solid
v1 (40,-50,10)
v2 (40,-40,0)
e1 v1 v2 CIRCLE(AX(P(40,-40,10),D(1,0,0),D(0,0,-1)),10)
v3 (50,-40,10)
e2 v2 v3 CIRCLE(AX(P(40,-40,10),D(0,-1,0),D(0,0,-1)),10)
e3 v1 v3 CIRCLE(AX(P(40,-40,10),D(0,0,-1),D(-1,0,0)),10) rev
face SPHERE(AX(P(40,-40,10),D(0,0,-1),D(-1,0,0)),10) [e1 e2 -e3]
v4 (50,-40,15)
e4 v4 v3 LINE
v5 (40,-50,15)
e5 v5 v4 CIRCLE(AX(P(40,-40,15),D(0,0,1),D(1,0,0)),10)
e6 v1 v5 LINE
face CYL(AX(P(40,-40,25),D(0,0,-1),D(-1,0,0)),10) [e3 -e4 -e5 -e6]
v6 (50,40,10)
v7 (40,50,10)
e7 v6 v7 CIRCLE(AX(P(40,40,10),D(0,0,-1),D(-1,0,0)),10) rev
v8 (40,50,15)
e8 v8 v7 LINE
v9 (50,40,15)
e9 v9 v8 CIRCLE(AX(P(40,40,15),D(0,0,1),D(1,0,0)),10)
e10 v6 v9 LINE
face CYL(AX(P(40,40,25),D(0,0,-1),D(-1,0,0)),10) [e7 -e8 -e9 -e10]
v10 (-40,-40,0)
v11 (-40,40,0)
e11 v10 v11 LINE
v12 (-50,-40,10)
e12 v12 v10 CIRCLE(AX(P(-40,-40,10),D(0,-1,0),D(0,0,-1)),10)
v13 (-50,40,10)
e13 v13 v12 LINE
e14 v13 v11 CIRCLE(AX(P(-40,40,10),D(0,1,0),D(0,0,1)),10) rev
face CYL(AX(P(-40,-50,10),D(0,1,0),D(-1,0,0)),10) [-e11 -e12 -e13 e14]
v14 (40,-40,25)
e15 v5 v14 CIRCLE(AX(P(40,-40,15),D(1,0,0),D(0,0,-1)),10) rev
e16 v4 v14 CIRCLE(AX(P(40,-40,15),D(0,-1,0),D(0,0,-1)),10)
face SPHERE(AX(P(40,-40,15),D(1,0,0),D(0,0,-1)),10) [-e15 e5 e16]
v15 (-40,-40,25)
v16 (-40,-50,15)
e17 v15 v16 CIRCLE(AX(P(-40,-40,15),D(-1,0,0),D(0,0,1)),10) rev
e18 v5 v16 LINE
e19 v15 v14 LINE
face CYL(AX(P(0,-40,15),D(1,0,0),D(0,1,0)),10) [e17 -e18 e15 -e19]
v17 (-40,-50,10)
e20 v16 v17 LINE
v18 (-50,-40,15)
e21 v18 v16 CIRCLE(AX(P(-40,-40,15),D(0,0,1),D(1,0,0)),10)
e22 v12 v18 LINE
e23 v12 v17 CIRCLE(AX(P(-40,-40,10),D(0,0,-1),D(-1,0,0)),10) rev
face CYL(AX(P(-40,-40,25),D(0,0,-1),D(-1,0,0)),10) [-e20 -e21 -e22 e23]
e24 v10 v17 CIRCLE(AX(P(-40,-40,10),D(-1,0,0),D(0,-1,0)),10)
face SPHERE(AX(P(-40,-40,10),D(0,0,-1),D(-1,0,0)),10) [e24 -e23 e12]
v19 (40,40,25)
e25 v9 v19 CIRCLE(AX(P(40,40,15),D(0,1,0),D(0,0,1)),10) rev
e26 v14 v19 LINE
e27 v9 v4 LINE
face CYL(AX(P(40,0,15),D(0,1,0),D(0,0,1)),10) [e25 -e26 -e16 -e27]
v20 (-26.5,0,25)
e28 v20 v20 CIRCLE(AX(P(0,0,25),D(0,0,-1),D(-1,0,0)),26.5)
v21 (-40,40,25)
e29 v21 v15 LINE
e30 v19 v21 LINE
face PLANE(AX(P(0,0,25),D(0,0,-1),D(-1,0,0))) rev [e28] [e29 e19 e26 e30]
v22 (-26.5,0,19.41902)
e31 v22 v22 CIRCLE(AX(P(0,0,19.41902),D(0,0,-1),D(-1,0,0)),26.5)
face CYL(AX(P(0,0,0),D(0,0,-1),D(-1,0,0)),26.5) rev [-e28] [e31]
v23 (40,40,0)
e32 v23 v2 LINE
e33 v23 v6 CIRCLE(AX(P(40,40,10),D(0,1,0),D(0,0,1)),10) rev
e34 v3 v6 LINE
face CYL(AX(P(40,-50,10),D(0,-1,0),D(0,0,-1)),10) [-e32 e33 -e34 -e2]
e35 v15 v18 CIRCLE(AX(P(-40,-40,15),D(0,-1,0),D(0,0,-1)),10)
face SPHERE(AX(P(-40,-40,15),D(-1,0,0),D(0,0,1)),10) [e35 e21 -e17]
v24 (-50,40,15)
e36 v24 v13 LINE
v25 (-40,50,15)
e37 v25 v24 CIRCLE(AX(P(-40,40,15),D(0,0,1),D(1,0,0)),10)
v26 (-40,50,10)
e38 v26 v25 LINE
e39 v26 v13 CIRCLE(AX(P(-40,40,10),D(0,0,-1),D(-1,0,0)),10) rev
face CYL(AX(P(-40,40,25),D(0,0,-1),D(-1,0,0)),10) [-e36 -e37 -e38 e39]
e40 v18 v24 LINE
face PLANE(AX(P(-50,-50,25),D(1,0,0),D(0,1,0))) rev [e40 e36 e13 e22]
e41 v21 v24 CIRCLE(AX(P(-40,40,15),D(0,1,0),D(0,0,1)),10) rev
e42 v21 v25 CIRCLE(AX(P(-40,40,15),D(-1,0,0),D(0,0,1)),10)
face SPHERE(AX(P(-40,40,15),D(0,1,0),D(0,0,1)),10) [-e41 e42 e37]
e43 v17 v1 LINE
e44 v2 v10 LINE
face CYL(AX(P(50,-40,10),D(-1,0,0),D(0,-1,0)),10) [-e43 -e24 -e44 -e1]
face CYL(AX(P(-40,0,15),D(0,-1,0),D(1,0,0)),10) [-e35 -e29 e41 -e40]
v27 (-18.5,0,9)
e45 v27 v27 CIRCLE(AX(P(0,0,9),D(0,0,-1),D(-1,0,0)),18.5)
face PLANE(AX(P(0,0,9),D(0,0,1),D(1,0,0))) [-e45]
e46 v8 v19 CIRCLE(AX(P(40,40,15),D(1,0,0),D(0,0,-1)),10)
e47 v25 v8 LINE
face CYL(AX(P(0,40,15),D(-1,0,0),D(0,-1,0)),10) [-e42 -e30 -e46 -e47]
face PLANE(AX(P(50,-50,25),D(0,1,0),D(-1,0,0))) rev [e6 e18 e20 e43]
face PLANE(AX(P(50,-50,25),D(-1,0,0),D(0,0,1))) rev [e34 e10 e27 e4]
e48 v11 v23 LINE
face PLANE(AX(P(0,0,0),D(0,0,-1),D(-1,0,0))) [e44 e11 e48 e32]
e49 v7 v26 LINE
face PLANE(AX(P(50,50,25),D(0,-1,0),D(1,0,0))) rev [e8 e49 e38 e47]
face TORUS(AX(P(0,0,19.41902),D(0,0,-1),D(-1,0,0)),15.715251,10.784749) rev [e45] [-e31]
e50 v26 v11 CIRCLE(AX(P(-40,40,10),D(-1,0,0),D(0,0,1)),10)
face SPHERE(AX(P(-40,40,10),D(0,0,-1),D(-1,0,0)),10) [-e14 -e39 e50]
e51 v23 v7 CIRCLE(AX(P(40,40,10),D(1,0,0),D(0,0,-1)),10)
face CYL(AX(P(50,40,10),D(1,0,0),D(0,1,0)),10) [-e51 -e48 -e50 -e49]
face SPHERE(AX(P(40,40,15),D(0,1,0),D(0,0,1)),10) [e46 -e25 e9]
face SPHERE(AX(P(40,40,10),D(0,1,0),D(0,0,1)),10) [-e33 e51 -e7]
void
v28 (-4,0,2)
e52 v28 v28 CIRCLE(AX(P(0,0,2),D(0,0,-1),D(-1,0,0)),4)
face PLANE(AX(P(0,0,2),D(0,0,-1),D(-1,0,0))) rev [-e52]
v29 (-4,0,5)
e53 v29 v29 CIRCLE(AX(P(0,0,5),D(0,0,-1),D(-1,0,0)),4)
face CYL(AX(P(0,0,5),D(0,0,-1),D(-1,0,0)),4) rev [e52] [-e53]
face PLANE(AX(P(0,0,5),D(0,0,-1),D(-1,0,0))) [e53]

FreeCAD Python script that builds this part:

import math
import FreeCAD as App
import Part
import Sketcher

V = App.Vector


def edges_at(feature, points):
    """Names of the edges that pass closest to the given points."""
    edges = feature.Shape.Edges
    near = lambda p: min(range(len(edges)), key=lambda i: edges[i].distToShape(Part.Vertex(*p))[0])
    return sorted({f"Edge{near(p) + 1}" for p in points})

doc = App.newDocument("Part")
params = doc.addObject("Spreadsheet::Sheet", "Params")
for row, (alias, value) in enumerate([
    ("sketch1_width", "100 mm"),
    ("pad1_length", "25 mm"),
    ("sketch2_height", "16 mm"),
    ("sketch2_width", "26.5 mm"),
    ("sketch2_width2", "18.5 mm"),
    ("groove_angle", "360 deg"),
    ("fillet_radius", "10 mm"),
    ("sketch3_diameter", "8 mm"),
    ("pocket1_length", "3 mm"),
], start=1):
    params.set(f"A{row}", alias)
    params.set(f"B{row}", "=" + value)
    params.setAlias(f"B{row}", alias)

body = doc.addObject("PartDesign::Body", "Body")

sketch1 = body.newObject("Sketcher::SketchObject", "Sketch")
sketch1.AttachmentSupport = (doc.getObject("XY_Plane"), [""])
sketch1.MapMode = "FlatFace"
sketch1.addGeometry(Part.LineSegment(V(-50, -50, 0), V(50, -50, 0)), False)
sketch1.addGeometry(Part.LineSegment(V(50, -50, 0), V(50, 50, 0)), False)
sketch1.addGeometry(Part.LineSegment(V(50, 50, 0), V(-50, 50, 0)), False)
sketch1.addGeometry(Part.LineSegment(V(-50, 50, 0), V(-50, -50, 0)), False)
sketch1.addConstraint(Sketcher.Constraint("Coincident", 0, 2, 1, 1))
sketch1.addConstraint(Sketcher.Constraint("Coincident", 1, 2, 2, 1))
sketch1.addConstraint(Sketcher.Constraint("Coincident", 2, 2, 3, 1))
sketch1.addConstraint(Sketcher.Constraint("Coincident", 3, 2, 0, 1))
sketch1.addConstraint(Sketcher.Constraint("Horizontal", 0))
sketch1.addConstraint(Sketcher.Constraint("Vertical", 1))
sketch1.addConstraint(Sketcher.Constraint("Horizontal", 2))
sketch1.addConstraint(Sketcher.Constraint("Vertical", 3))
sketch1.addConstraint(Sketcher.Constraint("Symmetric", 0, 2, 2, 2, -1, 1))
sketch1.addConstraint(Sketcher.Constraint("Equal", 2, 1))
sketch1.addConstraint(Sketcher.Constraint("DistanceX", 0, 1, 0, 2, 100.0))
sketch1.setExpression("Constraints[10]", "Params.sketch1_width")
pad1 = body.newObject("PartDesign::Pad", "Pad")
pad1.Profile = sketch1
pad1.setExpression("Length", "Params.pad1_length")

sketch2 = body.newObject("Sketcher::SketchObject", "Sketch001")
sketch2.AttachmentSupport = (doc.getObject("YZ_Plane"), [""])
sketch2.MapMode = "FlatFace"
sketch2.addGeometry(Part.LineSegment(V(0, 9, 0), V(0, 25, 0)), False)
sketch2.addGeometry(Part.LineSegment(V(0, 25, 0), V(26.5, 25, 0)), False)
sketch2.addGeometry(Part.LineSegment(V(26.5, 25, 0), V(26.5, 19.41902, 0)), False)
sketch2.addGeometry(Part.ArcOfCircle(Part.Circle(V(15.715251, 19.41902, 0), V(0, 0, 1), 10.784749), math.radians(-75.036021), math.radians(0)), False)
sketch2.addGeometry(Part.LineSegment(V(18.5, 9, 0), V(0, 9, 0)), False)
sketch2.addConstraint(Sketcher.Constraint("Coincident", 0, 2, 1, 1))
sketch2.addConstraint(Sketcher.Constraint("Coincident", 1, 2, 2, 1))
sketch2.addConstraint(Sketcher.Constraint("Tangent", 2, 2, 3, 2))
sketch2.addConstraint(Sketcher.Constraint("Coincident", 3, 1, 4, 1))
sketch2.addConstraint(Sketcher.Constraint("Coincident", 4, 2, 0, 1))
sketch2.addConstraint(Sketcher.Constraint("Vertical", 0))
sketch2.addConstraint(Sketcher.Constraint("Horizontal", 1))
sketch2.addConstraint(Sketcher.Constraint("Vertical", 2))
sketch2.addConstraint(Sketcher.Constraint("Horizontal", 4))
sketch2.addConstraint(Sketcher.Constraint("PointOnObject", 0, 2, -2))
sketch2.addConstraint(Sketcher.Constraint("DistanceY", 0, 1, 0, 2, 16.0))
sketch2.addConstraint(Sketcher.Constraint("DistanceX", 1, 1, 1, 2, 26.5))
sketch2.addConstraint(Sketcher.Constraint("DistanceX", 4, 2, 4, 1, 18.5))
sketch2.addConstraint(Sketcher.Constraint("DistanceY", -1, 1, 0, 2, 25.0))
sketch2.addConstraint(Sketcher.Constraint("Radius", 3, 10.784749))
sketch2.setExpression("Constraints[10]", "Params.sketch2_height")
sketch2.setExpression("Constraints[11]", "Params.sketch2_width")
sketch2.setExpression("Constraints[12]", "Params.sketch2_width2")
groove = body.newObject("PartDesign::Groove", "Groove")
groove.Profile = sketch2
groove.ReferenceAxis = (sketch2, ["V_Axis"])
groove.setExpression("Angle", "Params.groove_angle")
doc.recompute()

fillet = body.newObject("PartDesign::Fillet", "Fillet")
fillet.Base = (groove, edges_at(groove, [
    (0, -50, 25),
    (50, 0, 25),
    (0, 50, 25),
    (50, 0, 0),
    (0, -50, 0),
    (-50, 0, 0),
    (0, 50, 0),
    (50, 50, 12.5),
    (50, -50, 12.5),
    (-50, -50, 12.5),
    (-50, 50, 12.5),
    (-50, 0, 25),
]))
fillet.setExpression("Radius", "Params.fillet_radius")

sketch3 = body.newObject("Sketcher::SketchObject", "Sketch002")
sketch3.AttachmentSupport = (doc.getObject("XY_Plane"), [""])
sketch3.MapMode = "FlatFace"
sketch3.AttachmentOffset = App.Placement(V(0, 0, 2), App.Rotation())
sketch3.addGeometry(Part.Circle(V(0, 0, 0), V(0, 0, 1), 4), False)
sketch3.addConstraint(Sketcher.Constraint("Coincident", 0, 3, -1, 1))
sketch3.addConstraint(Sketcher.Constraint("Diameter", 0, 8.0))
sketch3.setExpression("Constraints[1]", "Params.sketch3_diameter")
pocket1 = body.newObject("PartDesign::Pocket", "Pocket")
pocket1.Profile = sketch3
pocket1.setExpression("Length", "Params.pocket1_length")
pocket1.Reversed = True

doc.recompute()
